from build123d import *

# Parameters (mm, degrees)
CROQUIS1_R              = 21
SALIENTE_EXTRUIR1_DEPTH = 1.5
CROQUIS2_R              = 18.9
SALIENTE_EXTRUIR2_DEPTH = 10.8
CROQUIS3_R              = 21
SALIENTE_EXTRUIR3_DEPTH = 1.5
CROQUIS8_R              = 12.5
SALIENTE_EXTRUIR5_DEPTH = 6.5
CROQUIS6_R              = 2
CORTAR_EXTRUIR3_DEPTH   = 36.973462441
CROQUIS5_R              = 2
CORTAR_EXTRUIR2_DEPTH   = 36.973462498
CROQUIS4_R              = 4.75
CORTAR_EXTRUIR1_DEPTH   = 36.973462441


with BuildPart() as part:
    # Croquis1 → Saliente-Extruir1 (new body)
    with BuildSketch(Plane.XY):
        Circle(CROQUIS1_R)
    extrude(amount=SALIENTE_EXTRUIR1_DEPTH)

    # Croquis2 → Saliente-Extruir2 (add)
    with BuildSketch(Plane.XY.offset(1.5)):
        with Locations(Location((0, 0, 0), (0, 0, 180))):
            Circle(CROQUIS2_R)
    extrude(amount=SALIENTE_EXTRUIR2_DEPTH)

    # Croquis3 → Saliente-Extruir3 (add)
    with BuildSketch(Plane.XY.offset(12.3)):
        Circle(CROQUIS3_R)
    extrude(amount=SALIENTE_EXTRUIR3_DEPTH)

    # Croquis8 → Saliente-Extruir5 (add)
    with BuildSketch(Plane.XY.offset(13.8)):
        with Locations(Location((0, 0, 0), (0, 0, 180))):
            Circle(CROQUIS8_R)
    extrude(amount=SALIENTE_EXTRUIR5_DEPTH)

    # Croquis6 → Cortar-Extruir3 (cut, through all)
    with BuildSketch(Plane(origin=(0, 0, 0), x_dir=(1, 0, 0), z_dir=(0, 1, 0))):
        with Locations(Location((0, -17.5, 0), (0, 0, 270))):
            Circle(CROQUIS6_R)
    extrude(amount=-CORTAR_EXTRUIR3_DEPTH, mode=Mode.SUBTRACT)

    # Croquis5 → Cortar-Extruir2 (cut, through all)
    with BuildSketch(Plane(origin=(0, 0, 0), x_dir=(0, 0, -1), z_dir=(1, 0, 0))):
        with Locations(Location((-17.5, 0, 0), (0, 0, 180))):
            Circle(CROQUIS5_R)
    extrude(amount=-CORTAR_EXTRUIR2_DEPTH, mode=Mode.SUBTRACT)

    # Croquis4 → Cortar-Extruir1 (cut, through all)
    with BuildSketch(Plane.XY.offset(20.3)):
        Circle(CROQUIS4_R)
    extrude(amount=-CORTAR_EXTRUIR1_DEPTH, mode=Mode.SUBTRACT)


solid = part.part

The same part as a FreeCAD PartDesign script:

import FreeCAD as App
import Part
import Sketcher
Q = App.Units.Quantity

doc = App.newDocument("Part")
params = doc.addObject("Spreadsheet::Sheet", "Params")
for row, (alias, value) in enumerate([
    ("sketch1_diameter", "42 mm"),
    ("pad1_length", "1.5 mm"),
    ("sketch2_diameter", "37.8 mm"),
    ("pad2_length", "10.8 mm"),
    ("sketch3_diameter", "42 mm"),
    ("pad3_length", "1.5 mm"),
    ("sketch4_diameter", "25 mm"),
    ("pad4_length", "6.5 mm"),
    ("sketch5_diameter", "4 mm"),
    ("sketch6_diameter", "4 mm"),
    ("sketch7_diameter", "9.5 mm"),
], start=1):
    params.set(f"A{row}", alias)
    params.set(f"B{row}", "=" + value)
    params.setAlias(f"B{row}", alias)

body = doc.addObject("PartDesign::Body", "Body")

# Sketch on XY plane
sketch1 = body.newObject("Sketcher::SketchObject", "Sketch")
sketch1.AttachmentSupport = (doc.getObject("XY_Plane"), [""])
sketch1.MapMode = "FlatFace"
sketch1.addGeometry(Part.Circle(App.Vector(0, 0, 0), App.Vector(0, 0, 1), 21), False)
sketch1.addConstraint([
    Sketcher.Constraint("Coincident", 0, 3, -1, 1),
    Sketcher.Constraint("Diameter", 0, Q("42 mm")),
])
sketch1.setExpression("Constraints[1]", "Params.sketch1_diameter")
pad1 = body.newObject("PartDesign::Pad", "Pad")
pad1.Profile = sketch1
pad1.setExpression("Length", "Params.pad1_length")

# Sketch on XY plane
sketch2 = body.newObject("Sketcher::SketchObject", "Sketch001")
sketch2.AttachmentSupport = (doc.getObject("XY_Plane"), [""])
sketch2.MapMode = "FlatFace"
sketch2.AttachmentOffset = App.Placement(App.Vector(0, 0, 1.5), App.Rotation())
sketch2.addGeometry(Part.Circle(App.Vector(0, 0, 0), App.Vector(0, 0, 1), 18.9), False)
sketch2.addConstraint([
    Sketcher.Constraint("Coincident", 0, 3, -1, 1),
    Sketcher.Constraint("Diameter", 0, Q("37.8 mm")),
])
sketch2.setExpression("Constraints[1]", "Params.sketch2_diameter")
pad2 = body.newObject("PartDesign::Pad", "Pad001")
pad2.Profile = sketch2
pad2.setExpression("Length", "Params.pad2_length")

# Sketch on XY plane
sketch3 = body.newObject("Sketcher::SketchObject", "Sketch002")
sketch3.AttachmentSupport = (doc.getObject("XY_Plane"), [""])
sketch3.MapMode = "FlatFace"
sketch3.AttachmentOffset = App.Placement(App.Vector(0, 0, 12.3), App.Rotation())
sketch3.addGeometry(Part.Circle(App.Vector(0, 0, 0), App.Vector(0, 0, 1), 21), False)
sketch3.addConstraint([
    Sketcher.Constraint("Coincident", 0, 3, -1, 1),
    Sketcher.Constraint("Diameter", 0, Q("42 mm")),
])
sketch3.setExpression("Constraints[1]", "Params.sketch3_diameter")
pad3 = body.newObject("PartDesign::Pad", "Pad002")
pad3.Profile = sketch3
pad3.setExpression("Length", "Params.pad3_length")

# Sketch on XY plane
sketch4 = body.newObject("Sketcher::SketchObject", "Sketch003")
sketch4.AttachmentSupport = (doc.getObject("XY_Plane"), [""])
sketch4.MapMode = "FlatFace"
sketch4.AttachmentOffset = App.Placement(App.Vector(0, 0, 13.8), App.Rotation())
sketch4.addGeometry(Part.Circle(App.Vector(0, 0, 0), App.Vector(0, 0, 1), 12.5), False)
sketch4.addConstraint([
    Sketcher.Constraint("Coincident", 0, 3, -1, 1),
    Sketcher.Constraint("Diameter", 0, Q("25 mm")),
])
sketch4.setExpression("Constraints[1]", "Params.sketch4_diameter")
pad4 = body.newObject("PartDesign::Pad", "Pad003")
pad4.Profile = sketch4
pad4.setExpression("Length", "Params.pad4_length")

# Sketch on XZ plane
sketch5 = body.newObject("Sketcher::SketchObject", "Sketch004")
sketch5.AttachmentSupport = (doc.getObject("XZ_Plane"), [""])
sketch5.MapMode = "FlatFace"
sketch5.addGeometry(Part.Circle(App.Vector(0, 17.5, 0), App.Vector(0, 0, 1), 2), False)
sketch5.addConstraint([
    Sketcher.Constraint("PointOnObject", 0, 3, -2),
    Sketcher.Constraint("Diameter", 0, Q("4 mm")),
    Sketcher.Constraint("DistanceY", -1, 1, 0, 3, Q("17.5 mm")),
])
sketch5.setExpression("Constraints[1]", "Params.sketch5_diameter")
pocket1 = body.newObject("PartDesign::Pocket", "Pocket")
pocket1.Profile = sketch5
pocket1.Type = "ThroughAll"
pocket1.Reversed = True

# Sketch on YZ plane
sketch6 = body.newObject("Sketcher::SketchObject", "Sketch005")
sketch6.AttachmentSupport = (doc.getObject("YZ_Plane"), [""])
sketch6.MapMode = "FlatFace"
sketch6.addGeometry(Part.Circle(App.Vector(0, 17.5, 0), App.Vector(0, 0, 1), 2), False)
sketch6.addConstraint([
    Sketcher.Constraint("PointOnObject", 0, 3, -2),
    Sketcher.Constraint("Diameter", 0, Q("4 mm")),
    Sketcher.Constraint("DistanceY", -1, 1, 0, 3, Q("17.5 mm")),
])
sketch6.setExpression("Constraints[1]", "Params.sketch6_diameter")
pocket2 = body.newObject("PartDesign::Pocket", "Pocket001")
pocket2.Profile = sketch6
pocket2.Type = "ThroughAll"

# Sketch on XY plane
sketch7 = body.newObject("Sketcher::SketchObject", "Sketch006")
sketch7.AttachmentSupport = (doc.getObject("XY_Plane"), [""])
sketch7.MapMode = "FlatFace"
sketch7.AttachmentOffset = App.Placement(App.Vector(0, 0, 20.3), App.Rotation())
sketch7.addGeometry(Part.Circle(App.Vector(0, 0, 0), App.Vector(0, 0, 1), 4.75), False)
sketch7.addConstraint([
    Sketcher.Constraint("Coincident", 0, 3, -1, 1),
    Sketcher.Constraint("Diameter", 0, Q("9.5 mm")),
])
sketch7.setExpression("Constraints[1]", "Params.sketch7_diameter")
pocket3 = body.newObject("PartDesign::Pocket", "Pocket002")
pocket3.Profile = sketch7
pocket3.Type = "ThroughAll"

doc.recompute()
